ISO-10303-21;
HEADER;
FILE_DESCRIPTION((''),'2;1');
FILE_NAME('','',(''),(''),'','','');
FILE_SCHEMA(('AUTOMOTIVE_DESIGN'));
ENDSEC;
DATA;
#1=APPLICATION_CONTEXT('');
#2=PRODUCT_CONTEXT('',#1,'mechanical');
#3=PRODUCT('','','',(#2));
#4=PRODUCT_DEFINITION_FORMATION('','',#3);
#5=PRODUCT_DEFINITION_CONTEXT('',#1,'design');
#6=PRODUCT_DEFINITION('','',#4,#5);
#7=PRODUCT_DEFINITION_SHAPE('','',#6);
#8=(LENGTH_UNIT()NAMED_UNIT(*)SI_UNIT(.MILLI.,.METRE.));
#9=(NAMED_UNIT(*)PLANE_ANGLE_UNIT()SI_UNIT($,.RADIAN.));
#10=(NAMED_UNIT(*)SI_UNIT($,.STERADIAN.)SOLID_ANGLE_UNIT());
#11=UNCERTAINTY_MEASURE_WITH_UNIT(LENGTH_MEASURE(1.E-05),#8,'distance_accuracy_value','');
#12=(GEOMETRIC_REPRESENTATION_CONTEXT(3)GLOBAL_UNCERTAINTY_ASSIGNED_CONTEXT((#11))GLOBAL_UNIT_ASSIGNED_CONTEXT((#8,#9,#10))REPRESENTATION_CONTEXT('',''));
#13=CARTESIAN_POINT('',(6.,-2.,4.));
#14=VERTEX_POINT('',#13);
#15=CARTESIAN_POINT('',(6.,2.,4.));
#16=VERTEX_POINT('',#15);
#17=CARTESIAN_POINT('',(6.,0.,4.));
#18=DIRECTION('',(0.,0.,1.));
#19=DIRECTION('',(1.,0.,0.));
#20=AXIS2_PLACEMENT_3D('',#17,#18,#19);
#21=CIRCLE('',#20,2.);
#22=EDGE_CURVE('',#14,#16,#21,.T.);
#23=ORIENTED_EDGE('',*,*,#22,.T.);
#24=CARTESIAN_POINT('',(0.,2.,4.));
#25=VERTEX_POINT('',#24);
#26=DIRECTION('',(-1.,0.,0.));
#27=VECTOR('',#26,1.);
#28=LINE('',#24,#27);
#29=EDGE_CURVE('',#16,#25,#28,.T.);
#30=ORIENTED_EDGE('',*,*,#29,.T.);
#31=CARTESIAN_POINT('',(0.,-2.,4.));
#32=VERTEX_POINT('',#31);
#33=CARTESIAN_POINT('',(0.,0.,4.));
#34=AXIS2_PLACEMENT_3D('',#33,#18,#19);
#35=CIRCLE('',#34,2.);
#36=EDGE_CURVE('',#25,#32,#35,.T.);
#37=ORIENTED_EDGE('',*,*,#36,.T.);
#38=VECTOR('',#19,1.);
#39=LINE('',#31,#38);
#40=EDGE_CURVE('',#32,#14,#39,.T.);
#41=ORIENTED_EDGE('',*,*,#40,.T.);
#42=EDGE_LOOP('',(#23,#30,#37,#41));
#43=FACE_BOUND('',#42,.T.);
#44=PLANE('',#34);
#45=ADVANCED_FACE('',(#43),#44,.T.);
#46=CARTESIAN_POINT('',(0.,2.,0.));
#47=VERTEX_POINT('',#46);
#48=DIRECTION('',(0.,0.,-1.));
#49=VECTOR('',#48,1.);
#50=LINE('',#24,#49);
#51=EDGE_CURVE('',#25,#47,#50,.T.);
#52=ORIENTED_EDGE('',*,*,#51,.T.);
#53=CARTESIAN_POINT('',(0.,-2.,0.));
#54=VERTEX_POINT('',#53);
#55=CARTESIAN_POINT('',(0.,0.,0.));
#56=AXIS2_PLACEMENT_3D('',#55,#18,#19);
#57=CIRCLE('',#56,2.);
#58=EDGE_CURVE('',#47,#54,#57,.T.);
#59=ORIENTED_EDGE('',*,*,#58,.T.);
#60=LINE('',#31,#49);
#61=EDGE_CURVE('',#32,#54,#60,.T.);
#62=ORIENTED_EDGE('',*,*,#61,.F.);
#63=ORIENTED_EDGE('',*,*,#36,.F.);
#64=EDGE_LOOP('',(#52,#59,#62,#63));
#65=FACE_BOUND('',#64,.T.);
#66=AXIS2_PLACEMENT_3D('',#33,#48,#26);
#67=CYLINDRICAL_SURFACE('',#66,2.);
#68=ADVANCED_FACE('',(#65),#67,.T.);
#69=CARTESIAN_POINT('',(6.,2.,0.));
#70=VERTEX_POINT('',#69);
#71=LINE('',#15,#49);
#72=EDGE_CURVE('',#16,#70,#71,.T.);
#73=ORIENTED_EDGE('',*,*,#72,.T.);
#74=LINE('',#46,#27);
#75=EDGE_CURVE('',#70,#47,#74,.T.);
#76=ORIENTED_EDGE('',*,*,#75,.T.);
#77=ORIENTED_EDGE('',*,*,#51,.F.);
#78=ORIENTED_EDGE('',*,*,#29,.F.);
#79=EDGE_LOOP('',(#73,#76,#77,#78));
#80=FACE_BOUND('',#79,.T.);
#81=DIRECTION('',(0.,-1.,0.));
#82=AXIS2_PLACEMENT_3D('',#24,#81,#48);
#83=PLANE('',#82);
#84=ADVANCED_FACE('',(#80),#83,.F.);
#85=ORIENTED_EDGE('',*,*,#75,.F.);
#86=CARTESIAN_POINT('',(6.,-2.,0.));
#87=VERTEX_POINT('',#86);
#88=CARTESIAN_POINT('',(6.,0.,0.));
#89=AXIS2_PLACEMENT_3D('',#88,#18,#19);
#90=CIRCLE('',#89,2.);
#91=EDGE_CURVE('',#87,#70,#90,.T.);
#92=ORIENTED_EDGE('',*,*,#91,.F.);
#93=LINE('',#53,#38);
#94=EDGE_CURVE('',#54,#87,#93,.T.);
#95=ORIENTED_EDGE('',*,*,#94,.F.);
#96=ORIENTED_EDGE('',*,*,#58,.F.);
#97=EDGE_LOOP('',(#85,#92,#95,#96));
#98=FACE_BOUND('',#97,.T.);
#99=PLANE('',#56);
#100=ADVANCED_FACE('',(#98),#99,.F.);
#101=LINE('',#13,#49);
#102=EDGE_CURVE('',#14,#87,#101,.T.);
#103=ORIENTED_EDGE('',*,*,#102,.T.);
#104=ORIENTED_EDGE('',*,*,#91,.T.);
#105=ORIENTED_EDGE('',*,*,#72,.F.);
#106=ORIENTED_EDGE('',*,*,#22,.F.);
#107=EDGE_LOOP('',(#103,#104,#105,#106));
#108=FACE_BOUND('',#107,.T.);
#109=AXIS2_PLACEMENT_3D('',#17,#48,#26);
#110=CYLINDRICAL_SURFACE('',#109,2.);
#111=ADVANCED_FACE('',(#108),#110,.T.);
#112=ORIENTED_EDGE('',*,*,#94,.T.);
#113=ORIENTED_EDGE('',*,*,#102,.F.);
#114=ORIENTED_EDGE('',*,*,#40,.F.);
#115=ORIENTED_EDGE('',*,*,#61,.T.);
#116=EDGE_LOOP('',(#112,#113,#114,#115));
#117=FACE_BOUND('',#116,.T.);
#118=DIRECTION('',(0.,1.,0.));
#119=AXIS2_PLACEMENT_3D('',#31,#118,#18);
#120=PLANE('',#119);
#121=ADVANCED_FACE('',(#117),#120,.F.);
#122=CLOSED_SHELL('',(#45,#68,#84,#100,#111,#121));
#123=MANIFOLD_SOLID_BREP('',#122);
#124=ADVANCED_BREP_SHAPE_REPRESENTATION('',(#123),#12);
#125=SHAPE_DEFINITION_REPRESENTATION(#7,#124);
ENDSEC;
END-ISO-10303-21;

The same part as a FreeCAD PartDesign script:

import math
import FreeCAD as App
import Part
import Sketcher
from FreeCAD import Vector
Q = App.Units.Quantity

doc = App.newDocument("Part")
params = doc.addObject("Spreadsheet::Sheet", "Params")
for row, (alias, value) in enumerate([
    ("sketch1_radius", "2 mm"),
    ("sketch1_width", "6 mm"),
    ("pad1_length", "4 mm"),
], start=1):
    params.set(f"A{row}", alias)
    params.set(f"B{row}", "=" + value)
    params.setAlias(f"B{row}", alias)

body = doc.addObject("PartDesign::Body", "Body")

# Sketch on XY plane
sketch1 = doc.addObject("Sketcher::SketchObject", "Sketch")
body.addObject(sketch1)
sketch1.AttachmentSupport = (doc.XY_Plane, [""])
sketch1.MapMode = "FlatFace"
sketch1.addGeometry(Part.LineSegment(Vector(6, 2, 0), Vector(0, 2, 0)), False)
sketch1.addGeometry(Part.ArcOfCircle(Part.Circle(Vector(0, 0, 0), Vector(0, 0, 1), 2), math.radians(90), math.radians(270)), False)
sketch1.addGeometry(Part.LineSegment(Vector(0, -2, 0), Vector(6, -2, 0)), False)
sketch1.addGeometry(Part.ArcOfCircle(Part.Circle(Vector(6, 0, 0), Vector(0, 0, 1), 2), math.radians(-90), math.radians(90)), False)
sketch1.addConstraint(Sketcher.Constraint("Tangent", 0, 2, 1, 1))
sketch1.addConstraint(Sketcher.Constraint("Tangent", 1, 2, 2, 1))
sketch1.addConstraint(Sketcher.Constraint("Tangent", 2, 2, 3, 1))
sketch1.addConstraint(Sketcher.Constraint("Tangent", 3, 2, 0, 1))
sketch1.addConstraint(Sketcher.Constraint("Horizontal", 0))
sketch1.addConstraint(Sketcher.Constraint("Horizontal", 2))
sketch1.addConstraint(Sketcher.Constraint("Coincident", 1, 3, -1, 1))
sketch1.addConstraint(Sketcher.Constraint("Radius", 1, Q("2 mm")))
sketch1.addConstraint(Sketcher.Constraint("DistanceX", 0, 2, 0, 1, Q("6 mm")))
sketch1.setExpression("Constraints[7]", "Params.sketch1_radius")
sketch1.setExpression("Constraints[8]", "Params.sketch1_width")
pad1 = doc.addObject("PartDesign::Pad", "Pad")
body.addObject(pad1)
pad1.Profile = sketch1
pad1.setExpression("Length", "Params.pad1_length")

doc.recompute()
